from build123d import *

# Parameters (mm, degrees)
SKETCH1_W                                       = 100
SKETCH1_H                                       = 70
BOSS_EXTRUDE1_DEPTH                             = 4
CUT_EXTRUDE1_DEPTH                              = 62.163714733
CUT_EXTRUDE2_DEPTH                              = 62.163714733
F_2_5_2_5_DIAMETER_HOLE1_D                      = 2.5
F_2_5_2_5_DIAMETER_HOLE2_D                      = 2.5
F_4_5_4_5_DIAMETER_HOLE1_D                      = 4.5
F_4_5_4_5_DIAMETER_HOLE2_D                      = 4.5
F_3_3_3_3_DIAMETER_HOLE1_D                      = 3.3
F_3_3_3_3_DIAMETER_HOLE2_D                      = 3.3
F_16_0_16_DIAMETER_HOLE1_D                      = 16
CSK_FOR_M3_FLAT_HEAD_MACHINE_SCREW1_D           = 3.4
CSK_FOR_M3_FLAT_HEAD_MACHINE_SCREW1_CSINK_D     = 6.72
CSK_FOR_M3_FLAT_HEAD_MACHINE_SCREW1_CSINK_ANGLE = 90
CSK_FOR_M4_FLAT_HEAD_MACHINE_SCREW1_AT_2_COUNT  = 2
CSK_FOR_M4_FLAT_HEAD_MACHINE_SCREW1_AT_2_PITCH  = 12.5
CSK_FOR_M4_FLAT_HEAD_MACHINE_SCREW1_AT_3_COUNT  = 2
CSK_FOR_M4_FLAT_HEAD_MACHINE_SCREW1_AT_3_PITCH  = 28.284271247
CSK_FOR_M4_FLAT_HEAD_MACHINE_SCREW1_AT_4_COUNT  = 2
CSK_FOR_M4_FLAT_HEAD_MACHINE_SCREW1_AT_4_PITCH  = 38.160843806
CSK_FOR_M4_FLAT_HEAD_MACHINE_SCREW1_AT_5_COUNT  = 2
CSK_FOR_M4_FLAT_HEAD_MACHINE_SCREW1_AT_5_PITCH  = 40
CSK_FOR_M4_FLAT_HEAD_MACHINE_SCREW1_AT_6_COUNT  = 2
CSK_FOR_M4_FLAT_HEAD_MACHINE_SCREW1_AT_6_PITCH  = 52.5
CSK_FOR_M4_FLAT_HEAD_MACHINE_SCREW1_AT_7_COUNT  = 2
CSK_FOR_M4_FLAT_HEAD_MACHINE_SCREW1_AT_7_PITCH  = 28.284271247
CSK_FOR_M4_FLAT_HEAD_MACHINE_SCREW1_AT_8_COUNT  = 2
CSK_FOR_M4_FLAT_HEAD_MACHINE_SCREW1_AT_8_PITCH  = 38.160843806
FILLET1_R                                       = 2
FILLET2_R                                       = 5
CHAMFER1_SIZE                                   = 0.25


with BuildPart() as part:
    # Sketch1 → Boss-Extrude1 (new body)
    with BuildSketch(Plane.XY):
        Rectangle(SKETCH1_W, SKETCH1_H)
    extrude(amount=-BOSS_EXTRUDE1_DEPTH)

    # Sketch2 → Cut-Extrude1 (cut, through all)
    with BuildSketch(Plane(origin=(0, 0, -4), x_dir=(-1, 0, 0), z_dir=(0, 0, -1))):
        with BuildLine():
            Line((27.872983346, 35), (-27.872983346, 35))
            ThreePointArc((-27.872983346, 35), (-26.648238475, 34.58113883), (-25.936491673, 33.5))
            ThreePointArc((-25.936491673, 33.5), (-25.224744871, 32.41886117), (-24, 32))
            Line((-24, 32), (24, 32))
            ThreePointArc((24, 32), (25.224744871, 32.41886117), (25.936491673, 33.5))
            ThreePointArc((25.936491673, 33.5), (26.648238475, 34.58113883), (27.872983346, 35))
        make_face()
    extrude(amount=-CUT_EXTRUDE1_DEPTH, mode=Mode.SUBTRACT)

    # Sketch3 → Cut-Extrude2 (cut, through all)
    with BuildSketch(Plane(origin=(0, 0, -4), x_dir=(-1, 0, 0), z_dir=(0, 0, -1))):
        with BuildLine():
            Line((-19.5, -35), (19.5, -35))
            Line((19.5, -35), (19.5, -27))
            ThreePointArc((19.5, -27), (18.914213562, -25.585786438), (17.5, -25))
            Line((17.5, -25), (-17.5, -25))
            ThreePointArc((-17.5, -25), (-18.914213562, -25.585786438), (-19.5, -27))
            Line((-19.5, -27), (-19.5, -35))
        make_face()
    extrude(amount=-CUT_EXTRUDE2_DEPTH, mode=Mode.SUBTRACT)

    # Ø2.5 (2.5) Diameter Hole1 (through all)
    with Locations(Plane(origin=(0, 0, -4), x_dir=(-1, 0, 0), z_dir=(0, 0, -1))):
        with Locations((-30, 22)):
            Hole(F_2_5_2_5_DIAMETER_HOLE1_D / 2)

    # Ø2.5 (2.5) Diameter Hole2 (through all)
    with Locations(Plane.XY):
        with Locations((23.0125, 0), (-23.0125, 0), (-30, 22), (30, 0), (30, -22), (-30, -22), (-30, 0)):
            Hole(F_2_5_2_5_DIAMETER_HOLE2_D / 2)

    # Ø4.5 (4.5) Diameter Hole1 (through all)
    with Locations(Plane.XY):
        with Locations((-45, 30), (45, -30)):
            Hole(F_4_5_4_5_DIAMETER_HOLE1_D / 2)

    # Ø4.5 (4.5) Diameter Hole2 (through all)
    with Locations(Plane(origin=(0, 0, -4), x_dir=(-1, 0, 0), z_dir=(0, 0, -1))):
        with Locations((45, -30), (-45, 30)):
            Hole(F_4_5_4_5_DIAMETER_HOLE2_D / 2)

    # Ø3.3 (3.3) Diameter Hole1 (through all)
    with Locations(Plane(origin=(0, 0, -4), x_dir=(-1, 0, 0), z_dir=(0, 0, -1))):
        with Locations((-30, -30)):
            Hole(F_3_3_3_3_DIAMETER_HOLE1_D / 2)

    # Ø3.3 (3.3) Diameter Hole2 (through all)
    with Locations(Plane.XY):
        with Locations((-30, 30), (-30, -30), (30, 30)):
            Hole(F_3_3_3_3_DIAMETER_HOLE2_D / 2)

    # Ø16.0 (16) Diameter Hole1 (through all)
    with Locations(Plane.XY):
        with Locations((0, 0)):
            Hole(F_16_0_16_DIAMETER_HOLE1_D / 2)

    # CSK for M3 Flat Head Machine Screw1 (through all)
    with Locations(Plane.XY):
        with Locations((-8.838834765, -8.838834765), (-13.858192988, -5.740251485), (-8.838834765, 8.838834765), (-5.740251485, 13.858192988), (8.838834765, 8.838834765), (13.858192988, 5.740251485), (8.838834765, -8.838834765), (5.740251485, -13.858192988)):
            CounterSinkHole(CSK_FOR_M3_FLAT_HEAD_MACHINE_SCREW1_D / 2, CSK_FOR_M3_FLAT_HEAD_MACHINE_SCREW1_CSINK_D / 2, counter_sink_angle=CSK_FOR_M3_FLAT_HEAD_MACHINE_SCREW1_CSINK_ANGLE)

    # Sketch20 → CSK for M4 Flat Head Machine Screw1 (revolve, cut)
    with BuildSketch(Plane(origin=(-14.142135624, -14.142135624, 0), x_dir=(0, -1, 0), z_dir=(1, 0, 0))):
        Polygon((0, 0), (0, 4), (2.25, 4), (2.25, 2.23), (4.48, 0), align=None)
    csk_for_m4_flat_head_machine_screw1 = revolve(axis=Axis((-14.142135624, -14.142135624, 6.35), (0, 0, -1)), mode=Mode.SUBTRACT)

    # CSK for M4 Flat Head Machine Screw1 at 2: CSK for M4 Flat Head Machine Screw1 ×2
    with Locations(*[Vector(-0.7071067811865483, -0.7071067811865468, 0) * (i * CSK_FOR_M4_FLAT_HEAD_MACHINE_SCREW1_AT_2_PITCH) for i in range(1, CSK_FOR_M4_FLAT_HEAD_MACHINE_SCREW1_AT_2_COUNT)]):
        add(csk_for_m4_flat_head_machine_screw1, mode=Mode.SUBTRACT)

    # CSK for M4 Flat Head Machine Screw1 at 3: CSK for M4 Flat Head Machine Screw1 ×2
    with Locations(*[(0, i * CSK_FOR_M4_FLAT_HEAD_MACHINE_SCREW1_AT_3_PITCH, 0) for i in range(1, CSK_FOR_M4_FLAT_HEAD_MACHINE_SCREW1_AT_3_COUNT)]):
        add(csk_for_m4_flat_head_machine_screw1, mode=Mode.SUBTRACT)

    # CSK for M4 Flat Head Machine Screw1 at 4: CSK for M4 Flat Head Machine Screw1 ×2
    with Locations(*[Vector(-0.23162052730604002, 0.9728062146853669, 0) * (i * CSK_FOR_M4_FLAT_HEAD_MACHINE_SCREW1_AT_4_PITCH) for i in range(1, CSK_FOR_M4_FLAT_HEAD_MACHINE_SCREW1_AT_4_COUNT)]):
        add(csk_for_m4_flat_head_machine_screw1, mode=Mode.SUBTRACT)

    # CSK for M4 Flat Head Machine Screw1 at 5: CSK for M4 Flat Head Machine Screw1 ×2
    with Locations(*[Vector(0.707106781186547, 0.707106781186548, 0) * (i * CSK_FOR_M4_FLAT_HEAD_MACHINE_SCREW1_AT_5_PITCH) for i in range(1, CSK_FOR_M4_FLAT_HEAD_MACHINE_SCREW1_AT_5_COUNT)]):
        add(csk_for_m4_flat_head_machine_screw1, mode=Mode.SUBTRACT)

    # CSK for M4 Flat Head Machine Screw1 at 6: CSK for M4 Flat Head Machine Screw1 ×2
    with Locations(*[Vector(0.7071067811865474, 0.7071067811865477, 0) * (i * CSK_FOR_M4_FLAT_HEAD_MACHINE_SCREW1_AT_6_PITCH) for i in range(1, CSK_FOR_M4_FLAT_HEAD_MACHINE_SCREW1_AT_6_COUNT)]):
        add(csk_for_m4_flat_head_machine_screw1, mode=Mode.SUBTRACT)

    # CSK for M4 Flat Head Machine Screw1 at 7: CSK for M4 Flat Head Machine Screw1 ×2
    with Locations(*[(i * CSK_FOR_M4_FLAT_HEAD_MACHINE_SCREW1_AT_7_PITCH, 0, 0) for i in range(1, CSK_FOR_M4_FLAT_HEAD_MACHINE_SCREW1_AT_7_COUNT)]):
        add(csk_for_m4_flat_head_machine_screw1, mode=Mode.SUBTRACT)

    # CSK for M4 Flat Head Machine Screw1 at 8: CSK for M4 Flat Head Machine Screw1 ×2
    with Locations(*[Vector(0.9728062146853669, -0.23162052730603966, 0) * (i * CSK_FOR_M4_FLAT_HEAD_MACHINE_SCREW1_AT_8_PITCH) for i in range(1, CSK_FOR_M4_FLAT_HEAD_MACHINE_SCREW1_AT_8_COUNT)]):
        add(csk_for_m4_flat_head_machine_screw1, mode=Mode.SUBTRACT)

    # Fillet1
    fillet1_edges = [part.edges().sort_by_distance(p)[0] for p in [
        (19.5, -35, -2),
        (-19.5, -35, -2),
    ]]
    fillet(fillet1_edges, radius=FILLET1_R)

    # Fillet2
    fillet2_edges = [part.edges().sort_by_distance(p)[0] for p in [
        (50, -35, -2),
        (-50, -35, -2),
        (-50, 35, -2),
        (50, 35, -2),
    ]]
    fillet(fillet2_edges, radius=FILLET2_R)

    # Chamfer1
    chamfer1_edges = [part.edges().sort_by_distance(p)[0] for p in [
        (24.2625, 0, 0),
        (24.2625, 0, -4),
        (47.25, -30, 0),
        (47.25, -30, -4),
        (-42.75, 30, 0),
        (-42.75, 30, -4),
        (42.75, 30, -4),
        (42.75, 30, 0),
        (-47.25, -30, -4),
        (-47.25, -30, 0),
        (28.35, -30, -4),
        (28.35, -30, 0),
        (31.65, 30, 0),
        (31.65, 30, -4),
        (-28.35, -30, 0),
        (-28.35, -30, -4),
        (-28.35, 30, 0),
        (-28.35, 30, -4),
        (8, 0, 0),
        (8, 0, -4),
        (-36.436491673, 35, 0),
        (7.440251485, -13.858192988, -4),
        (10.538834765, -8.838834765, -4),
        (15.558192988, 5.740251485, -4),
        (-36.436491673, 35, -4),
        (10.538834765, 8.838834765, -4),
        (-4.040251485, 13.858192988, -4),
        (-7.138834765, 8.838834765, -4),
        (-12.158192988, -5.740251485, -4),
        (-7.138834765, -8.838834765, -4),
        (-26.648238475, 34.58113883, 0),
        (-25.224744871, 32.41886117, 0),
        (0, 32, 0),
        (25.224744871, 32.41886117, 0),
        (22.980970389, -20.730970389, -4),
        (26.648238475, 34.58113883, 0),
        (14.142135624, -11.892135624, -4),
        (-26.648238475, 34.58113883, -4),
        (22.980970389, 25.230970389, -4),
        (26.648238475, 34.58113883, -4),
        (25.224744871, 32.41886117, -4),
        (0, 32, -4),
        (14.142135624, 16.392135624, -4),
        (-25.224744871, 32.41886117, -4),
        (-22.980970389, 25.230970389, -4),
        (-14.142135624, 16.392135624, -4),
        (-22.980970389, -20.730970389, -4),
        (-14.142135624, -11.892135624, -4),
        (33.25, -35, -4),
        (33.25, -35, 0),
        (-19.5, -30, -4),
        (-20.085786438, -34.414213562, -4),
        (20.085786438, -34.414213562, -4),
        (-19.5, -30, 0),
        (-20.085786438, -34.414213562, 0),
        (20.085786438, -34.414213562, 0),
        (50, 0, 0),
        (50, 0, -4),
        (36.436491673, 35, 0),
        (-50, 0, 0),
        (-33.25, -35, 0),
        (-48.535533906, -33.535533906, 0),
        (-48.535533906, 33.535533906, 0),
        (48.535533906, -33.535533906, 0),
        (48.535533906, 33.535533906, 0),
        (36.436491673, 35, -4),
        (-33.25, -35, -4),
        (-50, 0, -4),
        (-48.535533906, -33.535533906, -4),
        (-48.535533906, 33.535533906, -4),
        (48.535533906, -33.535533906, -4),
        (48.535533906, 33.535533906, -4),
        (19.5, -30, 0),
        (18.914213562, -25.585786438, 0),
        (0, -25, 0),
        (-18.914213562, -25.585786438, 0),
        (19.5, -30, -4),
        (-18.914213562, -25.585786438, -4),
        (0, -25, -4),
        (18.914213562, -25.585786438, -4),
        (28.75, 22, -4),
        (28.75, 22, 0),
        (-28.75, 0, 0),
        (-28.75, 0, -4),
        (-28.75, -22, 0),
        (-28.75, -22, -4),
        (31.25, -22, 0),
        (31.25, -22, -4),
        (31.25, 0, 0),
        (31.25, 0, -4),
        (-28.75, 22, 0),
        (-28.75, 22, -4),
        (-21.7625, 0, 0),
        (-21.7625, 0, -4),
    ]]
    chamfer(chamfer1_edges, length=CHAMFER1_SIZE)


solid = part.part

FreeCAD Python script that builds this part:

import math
import FreeCAD as App
import Part
import Sketcher

V = App.Vector
Q = App.Units.Quantity


def edges_at(feature, points):
    """Names of the edges that pass closest to the given points."""
    edges = feature.Shape.Edges
    near = lambda p: min(range(len(edges)), key=lambda i: edges[i].distToShape(Part.Vertex(*p))[0])
    return sorted({f"Edge{near(p) + 1}" for p in points})

doc = App.newDocument("Part")
body = doc.addObject("PartDesign::Body", "Body")

sketch1 = body.newObject("Sketcher::SketchObject", "Sketch")
sketch1.AttachmentSupport = (doc.getObject("XY_Plane"), [""])
sketch1.MapMode = "FlatFace"
sketch1.addGeometry([
    Part.LineSegment(V(-50, 35, 0), V(-50, -35, 0)),
    Part.LineSegment(V(-50, -35, 0), V(50, -35, 0)),
    Part.LineSegment(V(50, -35, 0), V(50, 35, 0)),
    Part.LineSegment(V(50, 35, 0), V(-50, 35, 0)),
], False)
sketch1.addConstraint([
    Sketcher.Constraint("Coincident", 0, 2, 1, 1),
    Sketcher.Constraint("Coincident", 1, 2, 2, 1),
    Sketcher.Constraint("Coincident", 2, 2, 3, 1),
    Sketcher.Constraint("Coincident", 3, 2, 0, 1),
    Sketcher.Constraint("Vertical", 0),
    Sketcher.Constraint("Horizontal", 1),
    Sketcher.Constraint("Vertical", 2),
    Sketcher.Constraint("Horizontal", 3),
    Sketcher.Constraint("Symmetric", 0, 2, 2, 2, -1, 1),
    Sketcher.Constraint("DistanceX", 1, 1, 1, 2, 100.0),
    Sketcher.Constraint("DistanceY", 0, 2, 0, 1, 70.0),
])
pad1 = body.newObject("PartDesign::Pad", "Pad")
pad1.Profile = sketch1
pad1.Length = 4
pad1.Reversed = True

sketch2 = body.newObject("Sketcher::SketchObject", "Sketch001")
sketch2.AttachmentSupport = (doc.getObject("XY_Plane"), [""])
sketch2.MapMode = "FlatFace"
sketch2.AttachmentOffset = App.Placement(V(0, 0, -4), App.Rotation())
sketch2.addGeometry([
    Part.LineSegment(V(-27.9, 35, 0), V(27.9, 35, 0)),
    Part.ArcOfCircle(Part.Circle(V(27.9, 33, 0), V(0, 0, 1), 2), math.radians(90), math.radians(166)),
    Part.ArcOfCircle(Part.Circle(V(24, 34, 0), V(0, 0, 1), 2), math.radians(-90), math.radians(-14)),
    Part.LineSegment(V(24, 32, 0), V(-24, 32, 0)),
    Part.ArcOfCircle(Part.Circle(V(-24, 34, 0), V(0, 0, 1), 2), math.radians(-166), math.radians(-90)),
    Part.ArcOfCircle(Part.Circle(V(-27.9, 33, 0), V(0, 0, 1), 2), math.radians(14), math.radians(90)),
], False)
sketch2.addConstraint([
    Sketcher.Constraint("Tangent", 0, 2, 1, 1),
    Sketcher.Constraint("Tangent", 1, 2, 2, 2),
    Sketcher.Constraint("Tangent", 2, 1, 3, 1),
    Sketcher.Constraint("Tangent", 3, 2, 4, 2),
    Sketcher.Constraint("Tangent", 4, 1, 5, 1),
    Sketcher.Constraint("Tangent", 5, 2, 0, 1),
    Sketcher.Constraint("Horizontal", 0),
    Sketcher.Constraint("Horizontal", 3),
    Sketcher.Constraint("Equal", 1, 2),
    Sketcher.Constraint("Equal", 2, 4),
    Sketcher.Constraint("Equal", 4, 5),
    Sketcher.Constraint("Radius", 1, 2.0),
    Sketcher.Constraint("DistanceX", 3, 2, 3, 1, 48.0),
    Sketcher.Constraint("DistanceY", -1, 1, 1, 3, 33.0),
    Sketcher.Constraint("DistanceX", -1, 1, 2, 3, 24.0),
    Sketcher.Constraint("DistanceY", -1, 1, 2, 3, 34.0),
])
pocket1 = body.newObject("PartDesign::Pocket", "Pocket")
pocket1.Profile = sketch2
pocket1.Type = "ThroughAll"
pocket1.Reversed = True

sketch3 = body.newObject("Sketcher::SketchObject", "Sketch002")
sketch3.AttachmentSupport = (doc.getObject("XY_Plane"), [""])
sketch3.MapMode = "FlatFace"
sketch3.AttachmentOffset = App.Placement(V(0, 0, -4), App.Rotation())
sketch3.addGeometry([
    Part.LineSegment(V(19.5, -35, 0), V(-19.5, -35, 0)),
    Part.LineSegment(V(-19.5, -35, 0), V(-19.5, -27, 0)),
    Part.ArcOfCircle(Part.Circle(V(-17.5, -27, 0), V(0, 0, 1), 2), math.radians(90), math.radians(180)),
    Part.LineSegment(V(-17.5, -25, 0), V(17.5, -25, 0)),
    Part.ArcOfCircle(Part.Circle(V(17.5, -27, 0), V(0, 0, 1), 2), math.radians(0), math.radians(90)),
    Part.LineSegment(V(19.5, -27, 0), V(19.5, -35, 0)),
], False)
sketch3.addConstraint([
    Sketcher.Constraint("Coincident", 0, 2, 1, 1),
    Sketcher.Constraint("Tangent", 1, 2, 2, 2),
    Sketcher.Constraint("Tangent", 2, 1, 3, 1),
    Sketcher.Constraint("Tangent", 3, 2, 4, 2),
    Sketcher.Constraint("Tangent", 4, 1, 5, 1),
    Sketcher.Constraint("Coincident", 5, 2, 0, 1),
    Sketcher.Constraint("Horizontal", 0),
    Sketcher.Constraint("Vertical", 1),
    Sketcher.Constraint("Horizontal", 3),
    Sketcher.Constraint("Vertical", 5),
    Sketcher.Constraint("Equal", 2, 4),
    Sketcher.Constraint("Radius", 2, 2.0),
    Sketcher.Constraint("DistanceX", 0, 2, 0, 1, 39.0),
    Sketcher.Constraint("DistanceY", 1, 1, 1, 2, 8.0),
    Sketcher.Constraint("DistanceY", 2, 3, -1, 1, 27.0),
    Sketcher.Constraint("DistanceX", 2, 3, -1, 1, 17.5),
])
pocket2 = body.newObject("PartDesign::Pocket", "Pocket001")
pocket2.Profile = sketch3
pocket2.Type = "ThroughAll"
pocket2.Reversed = True

sketch4 = body.newObject("Sketcher::SketchObject", "Sketch003")
sketch4.AttachmentSupport = (doc.getObject("XY_Plane"), [""])
sketch4.MapMode = "FlatFace"
sketch4.AttachmentOffset = App.Placement(V(0, 0, -4), App.Rotation())
sketch4.addGeometry(Part.Circle(V(30, 22, 0), V(0, 0, 1), 1.2), False)
sketch4.addConstraint([
    Sketcher.Constraint("Diameter", 0, 2.5),
    Sketcher.Constraint("DistanceX", -1, 1, 0, 3, 30.0),
    Sketcher.Constraint("DistanceY", -1, 1, 0, 3, 22.0),
])
doc.recompute()
hole = body.newObject("PartDesign::Hole", "Hole")
hole.Profile = sketch4
hole.ThreadType = "None"
hole.Diameter = 2.5
hole.DepthType = "ThroughAll"
hole.Reversed = True

sketch5 = body.newObject("Sketcher::SketchObject", "Sketch004")
sketch5.AttachmentSupport = (doc.getObject("XY_Plane"), [""])
sketch5.MapMode = "FlatFace"
sketch5.addGeometry([
    Part.Circle(V(23, 0, 0), V(0, 0, 1), 1.2),
    Part.Circle(V(-23, 0, 0), V(0, 0, 1), 1.2),
    Part.Circle(V(-30, 22, 0), V(0, 0, 1), 1.2),
    Part.Circle(V(30, 0, 0), V(0, 0, 1), 1.2),
    Part.Circle(V(30, -22, 0), V(0, 0, 1), 1.2),
    Part.Circle(V(-30, -22, 0), V(0, 0, 1), 1.2),
    Part.Circle(V(-30, 0, 0), V(0, 0, 1), 1.2),
], False)
sketch5.addConstraint([
    Sketcher.Constraint("Equal", 0, 1),
    Sketcher.Constraint("Equal", 1, 2),
    Sketcher.Constraint("Equal", 2, 3),
    Sketcher.Constraint("Equal", 3, 4),
    Sketcher.Constraint("Equal", 4, 5),
    Sketcher.Constraint("Equal", 5, 6),
    Sketcher.Constraint("Symmetric", 0, 3, 1, 3, -1, 1),
    Sketcher.Constraint("Symmetric", 2, 3, 4, 3, -1, 1),
    Sketcher.Constraint("Symmetric", 3, 3, 6, 3, -1, 1),
    Sketcher.Constraint("Symmetric", 4, 3, 5, 3, -2),
    Sketcher.Constraint("PointOnObject", 0, 3, -1),
    Sketcher.Constraint("PointOnObject", 3, 3, -1),
    Sketcher.Constraint("Vertical", 3, 3, 4, 3),
    Sketcher.Constraint("Diameter", 0, 2.5),
    Sketcher.Constraint("DistanceX", 2, 3, -1, 1, 30.0),
    Sketcher.Constraint("DistanceY", -1, 1, 2, 3, 22.0),
    Sketcher.Constraint("DistanceX", 1, 3, 0, 3, 46.025),
])
doc.recompute()
hole2 = body.newObject("PartDesign::Hole", "Hole001")
hole2.Profile = sketch5
hole2.ThreadType = "None"
hole2.Diameter = 2.5
hole2.DepthType = "ThroughAll"

sketch6 = body.newObject("Sketcher::SketchObject", "Sketch005")
sketch6.AttachmentSupport = (doc.getObject("XY_Plane"), [""])
sketch6.MapMode = "FlatFace"
sketch6.addGeometry([
    Part.Circle(V(-45, 30, 0), V(0, 0, 1), 2.2),
    Part.Circle(V(45, -30, 0), V(0, 0, 1), 2.2),
], False)
sketch6.addConstraint([
    Sketcher.Constraint("Equal", 0, 1),
    Sketcher.Constraint("Symmetric", 0, 3, 1, 3, -1, 1),
    Sketcher.Constraint("Diameter", 0, 4.5),
    Sketcher.Constraint("DistanceX", 0, 3, -1, 1, 45.0),
    Sketcher.Constraint("DistanceY", -1, 1, 0, 3, 30.0),
])
doc.recompute()
hole3 = body.newObject("PartDesign::Hole", "Hole002")
hole3.Profile = sketch6
hole3.ThreadType = "None"
hole3.Diameter = 4.5
hole3.DepthType = "ThroughAll"

sketch7 = body.newObject("Sketcher::SketchObject", "Sketch006")
sketch7.AttachmentSupport = (doc.getObject("XY_Plane"), [""])
sketch7.MapMode = "FlatFace"
sketch7.AttachmentOffset = App.Placement(V(0, 0, -4), App.Rotation())
sketch7.addGeometry([
    Part.Circle(V(-45, -30, 0), V(0, 0, 1), 2.2),
    Part.Circle(V(45, 30, 0), V(0, 0, 1), 2.2),
], False)
sketch7.addConstraint([
    Sketcher.Constraint("Equal", 0, 1),
    Sketcher.Constraint("Symmetric", 0, 3, 1, 3, -1, 1),
    Sketcher.Constraint("Diameter", 0, 4.5),
    Sketcher.Constraint("DistanceX", 0, 3, -1, 1, 45.0),
    Sketcher.Constraint("DistanceY", 0, 3, -1, 1, 30.0),
])
doc.recompute()
hole4 = body.newObject("PartDesign::Hole", "Hole003")
hole4.Profile = sketch7
hole4.ThreadType = "None"
hole4.Diameter = 4.5
hole4.DepthType = "ThroughAll"
hole4.Reversed = True

sketch8 = body.newObject("Sketcher::SketchObject", "Sketch007")
sketch8.AttachmentSupport = (doc.getObject("XY_Plane"), [""])
sketch8.MapMode = "FlatFace"
sketch8.AttachmentOffset = App.Placement(V(0, 0, -4), App.Rotation())
sketch8.addGeometry(Part.Circle(V(30, -30, 0), V(0, 0, 1), 1.6), False)
sketch8.addConstraint([
    Sketcher.Constraint("Diameter", 0, 3.3),
    Sketcher.Constraint("DistanceX", -1, 1, 0, 3, 30.0),
    Sketcher.Constraint("DistanceY", 0, 3, -1, 1, 30.0),
])
doc.recompute()
hole5 = body.newObject("PartDesign::Hole", "Hole004")
hole5.Profile = sketch8
hole5.ThreadType = "None"
hole5.Diameter = 3.3
hole5.DepthType = "ThroughAll"
hole5.Reversed = True

sketch9 = body.newObject("Sketcher::SketchObject", "Sketch008")
sketch9.AttachmentSupport = (doc.getObject("XY_Plane"), [""])
sketch9.MapMode = "FlatFace"
sketch9.addGeometry([
    Part.Circle(V(-30, 30, 0), V(0, 0, 1), 1.6),
    Part.Circle(V(-30, -30, 0), V(0, 0, 1), 1.6),
    Part.Circle(V(30, 30, 0), V(0, 0, 1), 1.6),
], False)
sketch9.addConstraint([
    Sketcher.Constraint("Equal", 0, 1),
    Sketcher.Constraint("Equal", 1, 2),
    Sketcher.Constraint("Symmetric", 1, 3, 2, 3, -1, 1),
    Sketcher.Constraint("Symmetric", 0, 3, 2, 3, -2),
    Sketcher.Constraint("Diameter", 0, 3.3),
    Sketcher.Constraint("DistanceX", 0, 3, -1, 1, 30.0),
    Sketcher.Constraint("DistanceY", -1, 1, 0, 3, 30.0),
])
doc.recompute()
hole6 = body.newObject("PartDesign::Hole", "Hole005")
hole6.Profile = sketch9
hole6.ThreadType = "None"
hole6.Diameter = 3.3
hole6.DepthType = "ThroughAll"

sketch10 = body.newObject("Sketcher::SketchObject", "Sketch009")
sketch10.AttachmentSupport = (doc.getObject("XY_Plane"), [""])
sketch10.MapMode = "FlatFace"
sketch10.addGeometry(Part.Circle(V(0, 0, 0), V(0, 0, 1), 8), False)
sketch10.addConstraint([
    Sketcher.Constraint("Coincident", 0, 3, -1, 1),
    Sketcher.Constraint("Diameter", 0, 16.0),
])
doc.recompute()
hole7 = body.newObject("PartDesign::Hole", "Hole006")
hole7.Profile = sketch10
hole7.ThreadType = "None"
hole7.Diameter = 16
hole7.DepthType = "ThroughAll"

sketch11 = body.newObject("Sketcher::SketchObject", "Sketch010")
sketch11.AttachmentSupport = (doc.getObject("XY_Plane"), [""])
sketch11.MapMode = "FlatFace"
sketch11.addGeometry([
    Part.Circle(V(-8.8, -8.8, 0), V(0, 0, 1), 1.7),
    Part.Circle(V(-13.9, -5.7, 0), V(0, 0, 1), 1.7),
    Part.Circle(V(-8.8, 8.8, 0), V(0, 0, 1), 1.7),
    Part.Circle(V(-5.7, 13.9, 0), V(0, 0, 1), 1.7),
    Part.Circle(V(8.8, 8.8, 0), V(0, 0, 1), 1.7),
    Part.Circle(V(13.9, 5.7, 0), V(0, 0, 1), 1.7),
    Part.Circle(V(8.8, -8.8, 0), V(0, 0, 1), 1.7),
    Part.Circle(V(5.7, -13.9, 0), V(0, 0, 1), 1.7),
], False)
sketch11.addConstraint([
    Sketcher.Constraint("Equal", 0, 1),
    Sketcher.Constraint("Equal", 1, 2),
    Sketcher.Constraint("Equal", 2, 3),
    Sketcher.Constraint("Equal", 3, 4),
    Sketcher.Constraint("Equal", 4, 5),
    Sketcher.Constraint("Equal", 5, 6),
    Sketcher.Constraint("Equal", 6, 7),
    Sketcher.Constraint("Symmetric", 0, 3, 4, 3, -1, 1),
    Sketcher.Constraint("Symmetric", 1, 3, 5, 3, -1, 1),
    Sketcher.Constraint("Symmetric", 2, 3, 6, 3, -1, 1),
    Sketcher.Constraint("Symmetric", 3, 3, 7, 3, -1, 1),
    Sketcher.Constraint("Symmetric", 2, 3, 4, 3, -2),
    Sketcher.Constraint("Diameter", 0, 3.4),
    Sketcher.Constraint("DistanceY", 1, 3, -1, 1, 5.740251),
    Sketcher.Constraint("DistanceX", 3, 3, -1, 1, 5.740251),
    Sketcher.Constraint("DistanceX", 1, 3, 0, 3, 5.019358),
    Sketcher.Constraint("DistanceY", 0, 3, 2, 3, 17.67767),
    Sketcher.Constraint("DistanceY", 2, 3, 3, 3, 5.019358),
    Sketcher.Constraint("DistanceX", 1, 3, 3, 3, 8.117942),
])
doc.recompute()
hole8 = body.newObject("PartDesign::Hole", "Hole007")
hole8.Profile = sketch11
hole8.ThreadType = "None"
hole8.Diameter = 3.4
hole8.DepthType = "ThroughAll"
hole8.HoleCutType = "Countersink"
hole8.HoleCutDiameter = 6.72
hole8.HoleCutCountersinkAngle = 90

sketch12 = body.newObject("Sketcher::SketchObject", "Sketch011")
sketch12.AttachmentSupport = (doc.getObject("YZ_Plane"), [""])
sketch12.MapMode = "FlatFace"
sketch12.AttachmentOffset = App.Placement(V(0, 0, -14.142136), App.Rotation())
sketch12.addGeometry([
    Part.LineSegment(V(-14.1, -4, 0), V(-14.1, 0, 0)),
    Part.LineSegment(V(-14.1, 0, 0), V(-18.6, 0, 0)),
    Part.LineSegment(V(-18.6, 0, 0), V(-16.4, -2.2, 0)),
    Part.LineSegment(V(-16.4, -2.2, 0), V(-16.4, -4, 0)),
    Part.LineSegment(V(-16.4, -4, 0), V(-14.1, -4, 0)),
], False)
sketch12.addGeometry(Part.LineSegment(V(-14.1, 0, 0), V(-14.1, -4, 0)), True)
sketch12.addConstraint([
    Sketcher.Constraint("Coincident", 0, 2, 1, 1),
    Sketcher.Constraint("Coincident", 1, 2, 2, 1),
    Sketcher.Constraint("Coincident", 2, 2, 3, 1),
    Sketcher.Constraint("Coincident", 3, 2, 4, 1),
    Sketcher.Constraint("Coincident", 4, 2, 0, 1),
    Sketcher.Constraint("Vertical", 0),
    Sketcher.Constraint("Horizontal", 1),
    Sketcher.Constraint("Vertical", 3),
    Sketcher.Constraint("Horizontal", 4),
    Sketcher.Constraint("Vertical", 5),
    Sketcher.Constraint("Coincident", 5, 1, 0, 2),
    Sketcher.Constraint("PointOnObject", 0, 2, -1),
    Sketcher.Constraint("Horizontal", 3, 2, 5, 2),
    Sketcher.Constraint("DistanceY", 0, 1, 0, 2, 4.0),
    Sketcher.Constraint("Angle", 2, Q("-45 deg")),
    Sketcher.Constraint("DistanceX", 1, 2, 1, 1, 4.48),
    Sketcher.Constraint("DistanceX", 4, 1, 4, 2, 2.25),
    Sketcher.Constraint("DistanceX", 0, 2, -1, 1, 14.142136),
])
groove = body.newObject("PartDesign::Groove", "Groove")
groove.Profile = sketch12
groove.ReferenceAxis = (sketch12, ["Axis0"])
groove.Angle = 360
doc.recompute()

datumline = body.newObject("PartDesign::Line", "DatumLine")
datumline.Placement = App.Placement(V(0, 0, 0), App.Rotation(V(0, 0, 1), V(-0.707106781, -0.707106781, 0)))
linearpattern = body.newObject("PartDesign::LinearPattern", "LinearPattern")
linearpattern.Originals = [groove]
linearpattern.Direction = (datumline, [""])
linearpattern.Mode = "offset"
linearpattern.Offset = 12.5
linearpattern.Occurrences = 2
body.Tip = linearpattern
doc.recompute()

linearpattern2 = body.newObject("PartDesign::LinearPattern", "LinearPattern001")
linearpattern2.Originals = [groove]
linearpattern2.Direction = (doc.getObject("Y_Axis"), [""])
linearpattern2.Mode = "offset"
linearpattern2.Offset = 28.284271
linearpattern2.Occurrences = 2
body.Tip = linearpattern2
doc.recompute()

datumline2 = body.newObject("PartDesign::Line", "DatumLine001")
datumline2.Placement = App.Placement(V(0, 0, 0), App.Rotation(V(0, 0, 1), V(-0.231620527, 0.972806215, 0)))
linearpattern3 = body.newObject("PartDesign::LinearPattern", "LinearPattern002")
linearpattern3.Originals = [groove]
linearpattern3.Direction = (datumline2, [""])
linearpattern3.Mode = "offset"
linearpattern3.Offset = 38.160844
linearpattern3.Occurrences = 2
body.Tip = linearpattern3
doc.recompute()

datumline3 = body.newObject("PartDesign::Line", "DatumLine002")
datumline3.Placement = App.Placement(V(0, 0, 0), App.Rotation(V(0, 0, 1), V(0.707106781, 0.707106781, 0)))
linearpattern4 = body.newObject("PartDesign::LinearPattern", "LinearPattern003")
linearpattern4.Originals = [groove]
linearpattern4.Direction = (datumline3, [""])
linearpattern4.Mode = "offset"
linearpattern4.Offset = 40
linearpattern4.Occurrences = 2
body.Tip = linearpattern4
doc.recompute()

datumline4 = body.newObject("PartDesign::Line", "DatumLine003")
datumline4.Placement = App.Placement(V(0, 0, 0), App.Rotation(V(0, 0, 1), V(0.707106781, 0.707106781, 0)))
linearpattern5 = body.newObject("PartDesign::LinearPattern", "LinearPattern004")
linearpattern5.Originals = [groove]
linearpattern5.Direction = (datumline4, [""])
linearpattern5.Mode = "offset"
linearpattern5.Offset = 52.5
linearpattern5.Occurrences = 2
body.Tip = linearpattern5
doc.recompute()

linearpattern6 = body.newObject("PartDesign::LinearPattern", "LinearPattern005")
linearpattern6.Originals = [groove]
linearpattern6.Direction = (doc.getObject("X_Axis"), [""])
linearpattern6.Mode = "offset"
linearpattern6.Offset = 28.284271
linearpattern6.Occurrences = 2
body.Tip = linearpattern6
doc.recompute()

datumline5 = body.newObject("PartDesign::Line", "DatumLine004")
datumline5.Placement = App.Placement(V(0, 0, 0), App.Rotation(V(0, 0, 1), V(0.972806215, -0.231620527, 0)))
linearpattern7 = body.newObject("PartDesign::LinearPattern", "LinearPattern006")
linearpattern7.Originals = [groove]
linearpattern7.Direction = (datumline5, [""])
linearpattern7.Mode = "offset"
linearpattern7.Offset = 38.160844
linearpattern7.Occurrences = 2
body.Tip = linearpattern7
doc.recompute()

fillet = body.newObject("PartDesign::Fillet", "Fillet")
fillet.Base = (linearpattern7, edges_at(linearpattern7, [(19.5, -35, -2), (-19.5, -35, -2)]))
fillet.Radius = 2
doc.recompute()

fillet2 = body.newObject("PartDesign::Fillet", "Fillet001")
fillet2.Base = (fillet, edges_at(fillet, [
    (50, -35, -2),
    (-50, -35, -2),
    (-50, 35, -2),
    (50, 35, -2),
]))
fillet2.Radius = 5
doc.recompute()

chamfer = body.newObject("PartDesign::Chamfer", "Chamfer")
chamfer.Base = (fillet2, edges_at(fillet2, [
    (24.262, 0, 0),
    (24.262, 0, -4),
    (47.25, -30, 0),
    (47.25, -30, -4),
    (-42.75, 30, 0),
    (-42.75, 30, -4),
    (42.75, 30, -4),
    (42.75, 30, 0),
    (-47.25, -30, -4),
    (-47.25, -30, 0),
    (28.35, -30, -4),
    (28.35, -30, 0),
    (31.65, 30, 0),
    (31.65, 30, -4),
    (-28.35, -30, 0),
    (-28.35, -30, -4),
    (-28.35, 30, 0),
    (-28.35, 30, -4),
    (8, 0, 0),
    (8, 0, -4),
    (-36.436, 35, 0),
    (7.44, -13.858, -4),
    (10.539, -8.839, -4),
    (15.558, 5.74, -4),
    (-36.436, 35, -4),
    (10.539, 8.839, -4),
    (-4.04, 13.858, -4),
    (-7.139, 8.839, -4),
    (-12.158, -5.74, -4),
    (-7.139, -8.839, -4),
    (-26.648, 34.581, 0),
    (-25.225, 32.419, 0),
    (0, 32, 0),
    (25.225, 32.419, 0),
    (22.981, -20.731, -4),
    (26.648, 34.581, 0),
    (14.142, -11.892, -4),
    (-26.648, 34.581, -4),
    (22.981, 25.231, -4),
    (26.648, 34.581, -4),
    (25.225, 32.419, -4),
    (0, 32, -4),
    (14.142, 16.392, -4),
    (-25.225, 32.419, -4),
    (-22.981, 25.231, -4),
    (-14.142, 16.392, -4),
    (-22.981, -20.731, -4),
    (-14.142, -11.892, -4),
    (33.25, -35, -4),
    (33.25, -35, 0),
    (-19.5, -30, -4),
    (-20.086, -34.414, -4),
    (20.086, -34.414, -4),
    (-19.5, -30, 0),
    (-20.086, -34.414, 0),
    (20.086, -34.414, 0),
    (50, 0, 0),
    (50, 0, -4),
    (36.436, 35, 0),
    (-50, 0, 0),
    (-33.25, -35, 0),
    (-48.536, -33.536, 0),
    (-48.536, 33.536, 0),
    (48.536, -33.536, 0),
    (48.536, 33.536, 0),
    (36.436, 35, -4),
    (-33.25, -35, -4),
    (-50, 0, -4),
    (-48.536, -33.536, -4),
    (-48.536, 33.536, -4),
    (48.536, -33.536, -4),
    (48.536, 33.536, -4),
    (19.5, -30, 0),
    (18.914, -25.586, 0),
    (0, -25, 0),
    (-18.914, -25.586, 0),
    (19.5, -30, -4),
    (-18.914, -25.586, -4),
    (0, -25, -4),
    (18.914, -25.586, -4),
    (28.75, 22, -4),
    (28.75, 22, 0),
    (-28.75, 0, 0),
    (-28.75, 0, -4),
    (-28.75, -22, 0),
    (-28.75, -22, -4),
    (31.25, -22, 0),
    (31.25, -22, -4),
    (31.25, 0, 0),
    (31.25, 0, -4),
    (-28.75, 22, 0),
    (-28.75, 22, -4),
    (-21.762, 0, 0),
    (-21.762, 0, -4),
]))
chamfer.Size = 0.25

doc.recompute()
